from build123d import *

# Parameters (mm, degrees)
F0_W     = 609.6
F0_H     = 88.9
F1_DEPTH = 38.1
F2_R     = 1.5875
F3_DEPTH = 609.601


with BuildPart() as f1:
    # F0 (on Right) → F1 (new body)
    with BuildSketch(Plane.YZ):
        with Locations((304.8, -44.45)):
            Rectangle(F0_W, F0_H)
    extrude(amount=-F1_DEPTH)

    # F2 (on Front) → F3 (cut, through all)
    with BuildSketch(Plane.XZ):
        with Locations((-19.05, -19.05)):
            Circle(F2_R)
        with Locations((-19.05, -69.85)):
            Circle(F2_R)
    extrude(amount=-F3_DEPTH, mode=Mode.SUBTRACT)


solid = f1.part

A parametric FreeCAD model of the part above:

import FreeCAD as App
import Part
import Sketcher

V = App.Vector
Q = App.Units.Quantity

doc = App.newDocument("Part")
body = doc.addObject("PartDesign::Body", "Body")

sketch1 = body.newObject("Sketcher::SketchObject", "Sketch")
sketch1.AttachmentSupport = (doc.getObject("YZ_Plane"), [""])
sketch1.MapMode = "FlatFace"
sketch1.addGeometry([
    Part.LineSegment(V(0, 0, 0), V(0, -89, 0)),
    Part.LineSegment(V(0, -89, 0), V(610, -89, 0)),
    Part.LineSegment(V(610, -89, 0), V(610, 0, 0)),
    Part.LineSegment(V(610, 0, 0), V(0, 0, 0)),
], False)
sketch1.addConstraint([
    Sketcher.Constraint("Coincident", 0, 2, 1, 1),
    Sketcher.Constraint("Coincident", 1, 2, 2, 1),
    Sketcher.Constraint("Coincident", 2, 2, 3, 1),
    Sketcher.Constraint("Coincident", 3, 2, 0, 1),
    Sketcher.Constraint("Vertical", 0),
    Sketcher.Constraint("Horizontal", 1),
    Sketcher.Constraint("Vertical", 2),
    Sketcher.Constraint("Horizontal", 3),
    Sketcher.Constraint("Coincident", 3, 2, -1, 1),
    Sketcher.Constraint("DistanceX", 1, 1, 1, 2, Q("24 in")),
    Sketcher.Constraint("DistanceY", 0, 2, 0, 1, Q("3.5 in")),
])
pad1 = body.newObject("PartDesign::Pad", "Pad")
pad1.Profile = sketch1
pad1.Length = Q("1.5 in")
pad1.Reversed = True

sketch2 = body.newObject("Sketcher::SketchObject", "Sketch001")
sketch2.AttachmentSupport = (doc.getObject("XZ_Plane"), [""])
sketch2.MapMode = "FlatFace"
sketch2.addGeometry([
    Part.Circle(V(-19.1, -19.1, 0), V(0, 0, 1), 1.6),
    Part.Circle(V(-19.1, -69.8, 0), V(0, 0, 1), 1.6),
], False)
sketch2.addConstraint([
    Sketcher.Constraint("Equal", 0, 1),
    Sketcher.Constraint("Vertical", 0, 3, 1, 3),
    Sketcher.Constraint("Diameter", 0, Q("0.125 in")),
    Sketcher.Constraint("DistanceY", 1, 3, 0, 3, Q("2 in")),
    Sketcher.Constraint("DistanceX", 0, 3, -1, 1, Q("0.75 in")),
    Sketcher.Constraint("DistanceY", 0, 3, -1, 1, Q("0.75 in")),
])
pocket1 = body.newObject("PartDesign::Pocket", "Pocket")
pocket1.Profile = sketch2
pocket1.Type = "ThroughAll"

doc.recompute()
